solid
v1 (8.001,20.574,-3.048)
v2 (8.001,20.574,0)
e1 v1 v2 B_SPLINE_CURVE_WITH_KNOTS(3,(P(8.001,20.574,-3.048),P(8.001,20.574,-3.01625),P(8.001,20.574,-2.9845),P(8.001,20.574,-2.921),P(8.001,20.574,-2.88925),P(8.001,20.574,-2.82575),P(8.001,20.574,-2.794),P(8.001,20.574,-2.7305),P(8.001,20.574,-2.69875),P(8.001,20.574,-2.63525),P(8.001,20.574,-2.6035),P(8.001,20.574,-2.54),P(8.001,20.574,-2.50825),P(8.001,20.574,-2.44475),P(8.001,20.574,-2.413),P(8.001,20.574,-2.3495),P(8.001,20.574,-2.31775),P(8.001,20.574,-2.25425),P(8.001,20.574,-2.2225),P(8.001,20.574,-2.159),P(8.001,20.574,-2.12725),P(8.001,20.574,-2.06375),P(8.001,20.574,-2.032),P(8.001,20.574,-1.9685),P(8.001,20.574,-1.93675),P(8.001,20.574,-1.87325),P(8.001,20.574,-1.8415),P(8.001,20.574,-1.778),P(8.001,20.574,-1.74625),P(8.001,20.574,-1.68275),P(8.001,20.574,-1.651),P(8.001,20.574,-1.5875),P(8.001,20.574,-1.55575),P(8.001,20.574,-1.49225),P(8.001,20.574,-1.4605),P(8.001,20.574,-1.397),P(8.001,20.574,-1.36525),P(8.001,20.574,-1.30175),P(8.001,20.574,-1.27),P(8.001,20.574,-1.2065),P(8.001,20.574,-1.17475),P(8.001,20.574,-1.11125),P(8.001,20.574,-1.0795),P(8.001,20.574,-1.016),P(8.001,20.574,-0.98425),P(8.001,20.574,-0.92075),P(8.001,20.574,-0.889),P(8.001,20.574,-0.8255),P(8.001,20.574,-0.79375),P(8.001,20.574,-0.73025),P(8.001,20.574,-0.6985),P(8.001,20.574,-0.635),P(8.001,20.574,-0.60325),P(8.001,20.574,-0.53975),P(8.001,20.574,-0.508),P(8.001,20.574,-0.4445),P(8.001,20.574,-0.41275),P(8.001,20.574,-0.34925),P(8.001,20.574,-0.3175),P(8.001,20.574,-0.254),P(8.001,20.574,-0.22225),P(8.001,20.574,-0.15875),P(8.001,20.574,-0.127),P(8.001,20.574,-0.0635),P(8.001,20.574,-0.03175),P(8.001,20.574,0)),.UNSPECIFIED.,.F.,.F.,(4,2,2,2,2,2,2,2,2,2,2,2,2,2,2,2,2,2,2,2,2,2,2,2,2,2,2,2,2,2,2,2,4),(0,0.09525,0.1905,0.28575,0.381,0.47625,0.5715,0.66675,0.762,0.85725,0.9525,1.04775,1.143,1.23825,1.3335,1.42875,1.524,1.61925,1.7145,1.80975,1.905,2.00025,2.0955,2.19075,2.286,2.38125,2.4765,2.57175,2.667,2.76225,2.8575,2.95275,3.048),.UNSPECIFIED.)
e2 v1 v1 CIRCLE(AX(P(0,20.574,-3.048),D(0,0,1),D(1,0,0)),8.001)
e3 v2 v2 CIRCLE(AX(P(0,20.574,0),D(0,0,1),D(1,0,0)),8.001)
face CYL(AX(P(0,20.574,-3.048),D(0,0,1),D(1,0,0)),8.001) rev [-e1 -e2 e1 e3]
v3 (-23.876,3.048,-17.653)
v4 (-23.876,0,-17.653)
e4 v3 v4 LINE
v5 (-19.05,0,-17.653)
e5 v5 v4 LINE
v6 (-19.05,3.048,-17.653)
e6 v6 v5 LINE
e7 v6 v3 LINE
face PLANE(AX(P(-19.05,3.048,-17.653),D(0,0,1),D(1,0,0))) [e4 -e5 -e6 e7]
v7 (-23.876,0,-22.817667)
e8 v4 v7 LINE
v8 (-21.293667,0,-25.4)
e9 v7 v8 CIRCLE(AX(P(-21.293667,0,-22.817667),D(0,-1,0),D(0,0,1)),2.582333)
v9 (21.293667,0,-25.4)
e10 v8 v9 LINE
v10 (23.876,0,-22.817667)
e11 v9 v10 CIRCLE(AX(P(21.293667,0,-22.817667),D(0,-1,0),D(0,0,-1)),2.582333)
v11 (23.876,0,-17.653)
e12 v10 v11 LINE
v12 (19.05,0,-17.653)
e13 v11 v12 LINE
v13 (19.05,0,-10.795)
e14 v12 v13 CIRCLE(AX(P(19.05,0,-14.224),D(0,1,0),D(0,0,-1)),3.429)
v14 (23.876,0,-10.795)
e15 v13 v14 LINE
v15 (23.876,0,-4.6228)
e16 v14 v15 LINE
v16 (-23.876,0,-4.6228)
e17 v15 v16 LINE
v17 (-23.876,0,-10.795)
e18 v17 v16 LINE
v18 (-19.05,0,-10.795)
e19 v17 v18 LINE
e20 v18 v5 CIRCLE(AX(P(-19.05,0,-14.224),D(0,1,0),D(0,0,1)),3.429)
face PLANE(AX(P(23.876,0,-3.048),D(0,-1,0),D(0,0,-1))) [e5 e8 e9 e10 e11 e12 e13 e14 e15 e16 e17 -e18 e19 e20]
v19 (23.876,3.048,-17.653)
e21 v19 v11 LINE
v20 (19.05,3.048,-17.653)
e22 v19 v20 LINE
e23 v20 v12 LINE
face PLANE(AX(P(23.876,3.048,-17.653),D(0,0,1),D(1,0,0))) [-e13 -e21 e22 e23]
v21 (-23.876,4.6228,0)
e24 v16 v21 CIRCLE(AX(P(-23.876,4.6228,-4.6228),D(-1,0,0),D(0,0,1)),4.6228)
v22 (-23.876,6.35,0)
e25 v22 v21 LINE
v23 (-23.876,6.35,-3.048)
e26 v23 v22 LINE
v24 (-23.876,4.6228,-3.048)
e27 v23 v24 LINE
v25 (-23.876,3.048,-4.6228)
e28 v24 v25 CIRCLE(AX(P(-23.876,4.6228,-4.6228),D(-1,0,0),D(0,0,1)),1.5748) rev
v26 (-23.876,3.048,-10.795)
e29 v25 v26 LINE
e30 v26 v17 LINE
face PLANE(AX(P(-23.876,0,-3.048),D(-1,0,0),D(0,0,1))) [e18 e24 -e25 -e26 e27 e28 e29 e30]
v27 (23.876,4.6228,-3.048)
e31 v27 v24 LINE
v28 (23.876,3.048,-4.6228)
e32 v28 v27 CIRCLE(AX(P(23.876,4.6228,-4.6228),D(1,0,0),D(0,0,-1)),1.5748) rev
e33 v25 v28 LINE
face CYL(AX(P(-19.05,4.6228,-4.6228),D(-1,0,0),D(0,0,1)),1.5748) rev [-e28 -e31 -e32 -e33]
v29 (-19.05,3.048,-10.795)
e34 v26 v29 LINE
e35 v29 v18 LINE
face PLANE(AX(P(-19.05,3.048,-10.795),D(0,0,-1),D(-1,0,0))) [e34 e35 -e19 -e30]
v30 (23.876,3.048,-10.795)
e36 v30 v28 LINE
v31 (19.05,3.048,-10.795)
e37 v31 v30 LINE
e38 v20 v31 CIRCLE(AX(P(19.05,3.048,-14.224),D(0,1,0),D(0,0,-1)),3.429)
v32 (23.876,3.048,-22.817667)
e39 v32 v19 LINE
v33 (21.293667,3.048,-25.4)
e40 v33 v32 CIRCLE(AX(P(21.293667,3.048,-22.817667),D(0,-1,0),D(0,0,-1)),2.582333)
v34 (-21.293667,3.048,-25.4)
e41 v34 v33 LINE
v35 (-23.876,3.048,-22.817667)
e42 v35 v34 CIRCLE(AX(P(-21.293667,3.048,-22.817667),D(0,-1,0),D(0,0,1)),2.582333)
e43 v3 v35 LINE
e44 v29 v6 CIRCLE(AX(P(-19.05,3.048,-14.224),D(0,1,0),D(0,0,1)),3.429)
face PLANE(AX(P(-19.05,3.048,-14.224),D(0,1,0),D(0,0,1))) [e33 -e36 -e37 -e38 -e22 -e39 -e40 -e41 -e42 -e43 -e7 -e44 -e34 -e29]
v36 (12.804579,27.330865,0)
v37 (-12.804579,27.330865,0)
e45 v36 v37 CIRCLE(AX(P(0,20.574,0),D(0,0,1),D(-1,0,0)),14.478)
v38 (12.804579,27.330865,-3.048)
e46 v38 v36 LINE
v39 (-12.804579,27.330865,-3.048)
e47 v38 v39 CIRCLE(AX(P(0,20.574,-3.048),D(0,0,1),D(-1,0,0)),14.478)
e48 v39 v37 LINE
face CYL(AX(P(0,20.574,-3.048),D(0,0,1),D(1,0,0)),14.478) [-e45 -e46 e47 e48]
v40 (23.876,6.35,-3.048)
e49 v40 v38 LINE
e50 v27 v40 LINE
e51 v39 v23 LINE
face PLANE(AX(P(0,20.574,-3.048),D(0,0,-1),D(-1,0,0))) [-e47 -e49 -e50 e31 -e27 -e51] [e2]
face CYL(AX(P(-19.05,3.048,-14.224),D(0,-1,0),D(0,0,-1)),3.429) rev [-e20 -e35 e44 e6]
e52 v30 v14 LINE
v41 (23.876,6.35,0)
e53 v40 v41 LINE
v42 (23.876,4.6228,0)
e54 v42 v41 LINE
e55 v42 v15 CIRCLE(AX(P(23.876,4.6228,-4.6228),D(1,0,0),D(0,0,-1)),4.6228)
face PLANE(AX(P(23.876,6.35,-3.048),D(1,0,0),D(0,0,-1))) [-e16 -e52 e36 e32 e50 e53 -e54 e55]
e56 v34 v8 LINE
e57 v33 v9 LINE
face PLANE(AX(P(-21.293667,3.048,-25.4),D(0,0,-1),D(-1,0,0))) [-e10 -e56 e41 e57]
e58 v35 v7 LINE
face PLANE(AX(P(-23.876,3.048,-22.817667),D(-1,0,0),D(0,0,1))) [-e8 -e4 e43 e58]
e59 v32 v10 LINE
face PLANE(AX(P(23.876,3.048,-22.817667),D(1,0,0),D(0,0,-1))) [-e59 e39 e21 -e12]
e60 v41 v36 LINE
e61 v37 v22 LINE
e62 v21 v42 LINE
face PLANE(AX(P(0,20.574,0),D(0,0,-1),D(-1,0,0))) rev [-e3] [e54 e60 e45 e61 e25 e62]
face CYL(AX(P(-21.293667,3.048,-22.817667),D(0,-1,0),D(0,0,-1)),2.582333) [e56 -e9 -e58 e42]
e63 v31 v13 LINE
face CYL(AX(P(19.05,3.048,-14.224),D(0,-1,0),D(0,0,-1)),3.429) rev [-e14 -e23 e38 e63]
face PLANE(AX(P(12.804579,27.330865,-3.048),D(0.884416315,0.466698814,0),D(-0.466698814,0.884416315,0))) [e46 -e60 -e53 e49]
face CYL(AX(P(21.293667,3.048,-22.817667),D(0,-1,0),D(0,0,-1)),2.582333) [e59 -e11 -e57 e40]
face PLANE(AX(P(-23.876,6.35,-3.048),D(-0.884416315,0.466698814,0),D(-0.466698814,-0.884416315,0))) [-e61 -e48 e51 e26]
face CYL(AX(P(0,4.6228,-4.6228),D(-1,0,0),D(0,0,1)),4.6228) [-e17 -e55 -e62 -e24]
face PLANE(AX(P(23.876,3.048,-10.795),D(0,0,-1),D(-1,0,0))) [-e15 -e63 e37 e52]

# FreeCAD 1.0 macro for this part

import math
import FreeCAD as App
import Part
import Sketcher
Q = App.Units.Quantity


def edges_at(feature, points):
    """Names of the edges that pass closest to the given points."""
    edges = feature.Shape.Edges
    near = lambda p: min(range(len(edges)), key=lambda i: edges[i].distToShape(Part.Vertex(*p))[0])
    return sorted({f"Edge{near(p) + 1}" for p in points})

doc = App.newDocument("Part")
body = doc.addObject("PartDesign::Body", "Body")

# Sketch on XY plane
sketch1 = doc.addObject("Sketcher::SketchObject", "Sketch")
body.addObject(sketch1)
sketch1.AttachmentSupport = (doc.XY_Plane, [""])
sketch1.MapMode = "FlatFace"
sketch1.addGeometry([
    Part.LineSegment(App.Vector(-12.804579, 27.330865, 0), App.Vector(-23.876, 6.35, 0)),  # 0
    Part.LineSegment(App.Vector(-23.876, 6.35, 0), App.Vector(-23.876, 0, 0)),  # 1
    Part.LineSegment(App.Vector(-23.876, 0, 0), App.Vector(23.876, 0, 0)),  # 2
    Part.LineSegment(App.Vector(23.876, 0, 0), App.Vector(23.876, 6.35, 0)),  # 3
    Part.LineSegment(App.Vector(23.876, 6.35, 0), App.Vector(12.804579, 27.330865, 0)),  # 4
    Part.ArcOfCircle(Part.Circle(App.Vector(0, 20.574, 0), App.Vector(0, 0, 1), 14.478), math.radians(27.820222), math.radians(152.179778)),  # 5
    Part.Circle(App.Vector(0, 20.574, 0), App.Vector(0, 0, 1), 8.001),  # 6
], False)
sketch1.addConstraint([
    Sketcher.Constraint("Coincident", 0, 2, 1, 1),
    Sketcher.Constraint("Coincident", 1, 2, 2, 1),
    Sketcher.Constraint("Coincident", 2, 2, 3, 1),
    Sketcher.Constraint("Coincident", 3, 2, 4, 1),
    Sketcher.Constraint("Tangent", 4, 2, 5, 1),
    Sketcher.Constraint("Tangent", 5, 2, 0, 1),
    Sketcher.Constraint("Vertical", 1),
    Sketcher.Constraint("Horizontal", 2),
    Sketcher.Constraint("Vertical", 3),
    Sketcher.Constraint("Coincident", 6, 3, 5, 3),
    Sketcher.Constraint("Symmetric", 1, 2, 2, 2, -1, 1),
    Sketcher.Constraint("Symmetric", 4, 2, 5, 2, -2),
    Sketcher.Constraint("Diameter", 6, Q("0.63 in")),
    Sketcher.Constraint("Radius", 5, Q("0.57 in")),
    Sketcher.Constraint("DistanceX", 2, 1, 2, 2, Q("1.88 in")),
    Sketcher.Constraint("DistanceY", 1, 2, 1, 1, Q("0.25 in")),
    Sketcher.Constraint("DistanceY", -1, 1, 5, 3, Q("0.81 in")),
])
pad1 = doc.addObject("PartDesign::Pad", "Pad")
body.addObject(pad1)
pad1.Profile = sketch1
pad1.Length = Q("0.12 in")
pad1.Reversed = True

# Sketch on XZ plane
sketch2 = doc.addObject("Sketcher::SketchObject", "Sketch001")
body.addObject(sketch2)
sketch2.AttachmentSupport = (doc.XZ_Plane, [""])
sketch2.MapMode = "FlatFace"
sketch2.addGeometry([
    Part.LineSegment(App.Vector(19.05, -10.795, 0), App.Vector(23.876, -10.795, 0)),  # 0
    Part.LineSegment(App.Vector(23.876, -10.795, 0), App.Vector(23.876, 0, 0)),  # 1
    Part.LineSegment(App.Vector(23.876, 0, 0), App.Vector(-23.876, 0, 0)),  # 2
    Part.LineSegment(App.Vector(-23.876, 0, 0), App.Vector(-23.876, -10.795, 0)),  # 3
    Part.LineSegment(App.Vector(-23.876, -10.795, 0), App.Vector(-19.05, -10.795, 0)),  # 4
    Part.ArcOfCircle(Part.Circle(App.Vector(-19.05, -14.224, 0), App.Vector(0, 0, 1), 3.429), math.radians(-90), math.radians(90)),  # 5
    Part.LineSegment(App.Vector(-19.05, -17.653, 0), App.Vector(-23.876, -17.653, 0)),  # 6
    Part.LineSegment(App.Vector(-23.876, -17.653, 0), App.Vector(-23.876, -22.817667, 0)),  # 7
    Part.ArcOfCircle(Part.Circle(App.Vector(-21.293667, -22.817667, 0), App.Vector(0, 0, 1), 2.582333), math.radians(180), math.radians(270)),  # 8
    Part.LineSegment(App.Vector(-21.293667, -25.4, 0), App.Vector(21.293667, -25.4, 0)),  # 9
    Part.ArcOfCircle(Part.Circle(App.Vector(21.293667, -22.817667, 0), App.Vector(0, 0, 1), 2.582333), math.radians(-90), math.radians(0)),  # 10
    Part.LineSegment(App.Vector(23.876, -22.817667, 0), App.Vector(23.876, -17.653, 0)),  # 11
    Part.LineSegment(App.Vector(23.876, -17.653, 0), App.Vector(19.05, -17.653, 0)),  # 12
    Part.ArcOfCircle(Part.Circle(App.Vector(19.05, -14.224, 0), App.Vector(0, 0, 1), 3.429), math.radians(90), math.radians(270)),  # 13
], False)
sketch2.addConstraint([
    Sketcher.Constraint("Coincident", 0, 2, 1, 1),
    Sketcher.Constraint("Coincident", 1, 2, 2, 1),
    Sketcher.Constraint("Coincident", 2, 2, 3, 1),
    Sketcher.Constraint("Coincident", 3, 2, 4, 1),
    Sketcher.Constraint("Tangent", 4, 2, 5, 2),
    Sketcher.Constraint("Tangent", 5, 1, 6, 1),
    Sketcher.Constraint("Coincident", 6, 2, 7, 1),
    Sketcher.Constraint("Tangent", 7, 2, 8, 1),
    Sketcher.Constraint("Tangent", 8, 2, 9, 1),
    Sketcher.Constraint("Tangent", 9, 2, 10, 1),
    Sketcher.Constraint("Tangent", 10, 2, 11, 1),
    Sketcher.Constraint("Coincident", 11, 2, 12, 1),
    Sketcher.Constraint("Tangent", 12, 2, 13, 2),
    Sketcher.Constraint("Tangent", 13, 1, 0, 1),
    Sketcher.Constraint("Horizontal", 0),
    Sketcher.Constraint("Vertical", 1),
    Sketcher.Constraint("Horizontal", 2),
    Sketcher.Constraint("Vertical", 3),
    Sketcher.Constraint("Horizontal", 4),
    Sketcher.Constraint("Horizontal", 6),
    Sketcher.Constraint("Vertical", 7),
    Sketcher.Constraint("Horizontal", 9),
    Sketcher.Constraint("Vertical", 11),
    Sketcher.Constraint("Horizontal", 12),
    Sketcher.Constraint("Equal", 8, 10),
    Sketcher.Constraint("Equal", 5, 13),
    Sketcher.Constraint("Symmetric", 1, 2, 2, 2, -1, 1),
    Sketcher.Constraint("Symmetric", 5, 3, 13, 3, -2),
    Sketcher.Constraint("Vertical", 3, 2, 6, 2),
    Sketcher.Constraint("Vertical", 1, 2, 10, 2),
    Sketcher.Constraint("DistanceY", 8, 2, -1, 1, Q("1 in")),
    Sketcher.Constraint("Radius", 5, Q("0.135 in")),
    Sketcher.Constraint("DistanceX", 0, 1, 0, 2, Q("0.19 in")),
    Sketcher.Constraint("DistanceX", 2, 2, 2, 1, Q("1.88 in")),
    Sketcher.Constraint("DistanceY", 1, 1, 1, 2, Q("0.425 in")),
    Sketcher.Constraint("Radius", 8, 2.582333),
])
pad2 = doc.addObject("PartDesign::Pad", "Pad001")
body.addObject(pad2)
pad2.Profile = sketch2
pad2.Length = Q("0.12 in")
pad2.Reversed = True
doc.recompute()

fillet = doc.addObject("PartDesign::Fillet", "Fillet")
body.addObject(fillet)
fillet.Base = (pad2, edges_at(pad2, [(0, 3.048, -3.048)]))
fillet.Radius = Q("0.062 in")
doc.recompute()

fillet2 = doc.addObject("PartDesign::Fillet", "Fillet001")
body.addObject(fillet2)
fillet2.Base = (fillet, edges_at(fillet, [(0, 0, 0)]))
fillet2.Radius = Q("0.182 in")

doc.recompute()
